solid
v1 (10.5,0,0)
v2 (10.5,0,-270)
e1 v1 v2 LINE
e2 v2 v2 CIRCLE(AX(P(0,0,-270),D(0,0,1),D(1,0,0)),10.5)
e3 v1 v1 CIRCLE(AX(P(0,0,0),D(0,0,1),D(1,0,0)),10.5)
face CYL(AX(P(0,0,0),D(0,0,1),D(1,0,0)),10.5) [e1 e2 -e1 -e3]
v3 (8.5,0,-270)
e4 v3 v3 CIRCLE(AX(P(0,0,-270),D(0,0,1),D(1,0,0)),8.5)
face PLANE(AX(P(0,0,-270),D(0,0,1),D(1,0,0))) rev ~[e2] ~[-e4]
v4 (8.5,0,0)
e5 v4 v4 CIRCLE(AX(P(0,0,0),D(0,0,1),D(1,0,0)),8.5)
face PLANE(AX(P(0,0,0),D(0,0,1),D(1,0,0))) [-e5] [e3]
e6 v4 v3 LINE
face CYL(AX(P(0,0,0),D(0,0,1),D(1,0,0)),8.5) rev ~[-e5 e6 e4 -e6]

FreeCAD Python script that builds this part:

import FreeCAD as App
import Part
import Sketcher

V = App.Vector
Q = App.Units.Quantity

doc = App.newDocument("Part")
body = doc.addObject("PartDesign::Body", "Body")

# Sketch on XY plane
sketch1 = body.newObject("Sketcher::SketchObject", "Sketch")
sketch1.AttachmentSupport = (doc.getObject("XY_Plane"), [""])
sketch1.MapMode = "FlatFace"
sketch1.addGeometry([
    Part.Circle(V(0, 0, 0), V(0, 0, 1), 10.5),
    Part.Circle(V(0, 0, 0), V(0, 0, 1), 8.5),
], False)
sketch1.addConstraint([
    Sketcher.Constraint("Coincident", 0, 3, -1, 1),
    Sketcher.Constraint("Coincident", 1, 3, -1, 1),
    Sketcher.Constraint("Diameter", 0, Q("21 mm")),
    Sketcher.Constraint("Diameter", 1, Q("17 mm")),
])
pad1 = body.newObject("PartDesign::Pad", "Pad")
pad1.Profile = sketch1
pad1.Length = 270
pad1.Reversed = True

doc.recompute()
